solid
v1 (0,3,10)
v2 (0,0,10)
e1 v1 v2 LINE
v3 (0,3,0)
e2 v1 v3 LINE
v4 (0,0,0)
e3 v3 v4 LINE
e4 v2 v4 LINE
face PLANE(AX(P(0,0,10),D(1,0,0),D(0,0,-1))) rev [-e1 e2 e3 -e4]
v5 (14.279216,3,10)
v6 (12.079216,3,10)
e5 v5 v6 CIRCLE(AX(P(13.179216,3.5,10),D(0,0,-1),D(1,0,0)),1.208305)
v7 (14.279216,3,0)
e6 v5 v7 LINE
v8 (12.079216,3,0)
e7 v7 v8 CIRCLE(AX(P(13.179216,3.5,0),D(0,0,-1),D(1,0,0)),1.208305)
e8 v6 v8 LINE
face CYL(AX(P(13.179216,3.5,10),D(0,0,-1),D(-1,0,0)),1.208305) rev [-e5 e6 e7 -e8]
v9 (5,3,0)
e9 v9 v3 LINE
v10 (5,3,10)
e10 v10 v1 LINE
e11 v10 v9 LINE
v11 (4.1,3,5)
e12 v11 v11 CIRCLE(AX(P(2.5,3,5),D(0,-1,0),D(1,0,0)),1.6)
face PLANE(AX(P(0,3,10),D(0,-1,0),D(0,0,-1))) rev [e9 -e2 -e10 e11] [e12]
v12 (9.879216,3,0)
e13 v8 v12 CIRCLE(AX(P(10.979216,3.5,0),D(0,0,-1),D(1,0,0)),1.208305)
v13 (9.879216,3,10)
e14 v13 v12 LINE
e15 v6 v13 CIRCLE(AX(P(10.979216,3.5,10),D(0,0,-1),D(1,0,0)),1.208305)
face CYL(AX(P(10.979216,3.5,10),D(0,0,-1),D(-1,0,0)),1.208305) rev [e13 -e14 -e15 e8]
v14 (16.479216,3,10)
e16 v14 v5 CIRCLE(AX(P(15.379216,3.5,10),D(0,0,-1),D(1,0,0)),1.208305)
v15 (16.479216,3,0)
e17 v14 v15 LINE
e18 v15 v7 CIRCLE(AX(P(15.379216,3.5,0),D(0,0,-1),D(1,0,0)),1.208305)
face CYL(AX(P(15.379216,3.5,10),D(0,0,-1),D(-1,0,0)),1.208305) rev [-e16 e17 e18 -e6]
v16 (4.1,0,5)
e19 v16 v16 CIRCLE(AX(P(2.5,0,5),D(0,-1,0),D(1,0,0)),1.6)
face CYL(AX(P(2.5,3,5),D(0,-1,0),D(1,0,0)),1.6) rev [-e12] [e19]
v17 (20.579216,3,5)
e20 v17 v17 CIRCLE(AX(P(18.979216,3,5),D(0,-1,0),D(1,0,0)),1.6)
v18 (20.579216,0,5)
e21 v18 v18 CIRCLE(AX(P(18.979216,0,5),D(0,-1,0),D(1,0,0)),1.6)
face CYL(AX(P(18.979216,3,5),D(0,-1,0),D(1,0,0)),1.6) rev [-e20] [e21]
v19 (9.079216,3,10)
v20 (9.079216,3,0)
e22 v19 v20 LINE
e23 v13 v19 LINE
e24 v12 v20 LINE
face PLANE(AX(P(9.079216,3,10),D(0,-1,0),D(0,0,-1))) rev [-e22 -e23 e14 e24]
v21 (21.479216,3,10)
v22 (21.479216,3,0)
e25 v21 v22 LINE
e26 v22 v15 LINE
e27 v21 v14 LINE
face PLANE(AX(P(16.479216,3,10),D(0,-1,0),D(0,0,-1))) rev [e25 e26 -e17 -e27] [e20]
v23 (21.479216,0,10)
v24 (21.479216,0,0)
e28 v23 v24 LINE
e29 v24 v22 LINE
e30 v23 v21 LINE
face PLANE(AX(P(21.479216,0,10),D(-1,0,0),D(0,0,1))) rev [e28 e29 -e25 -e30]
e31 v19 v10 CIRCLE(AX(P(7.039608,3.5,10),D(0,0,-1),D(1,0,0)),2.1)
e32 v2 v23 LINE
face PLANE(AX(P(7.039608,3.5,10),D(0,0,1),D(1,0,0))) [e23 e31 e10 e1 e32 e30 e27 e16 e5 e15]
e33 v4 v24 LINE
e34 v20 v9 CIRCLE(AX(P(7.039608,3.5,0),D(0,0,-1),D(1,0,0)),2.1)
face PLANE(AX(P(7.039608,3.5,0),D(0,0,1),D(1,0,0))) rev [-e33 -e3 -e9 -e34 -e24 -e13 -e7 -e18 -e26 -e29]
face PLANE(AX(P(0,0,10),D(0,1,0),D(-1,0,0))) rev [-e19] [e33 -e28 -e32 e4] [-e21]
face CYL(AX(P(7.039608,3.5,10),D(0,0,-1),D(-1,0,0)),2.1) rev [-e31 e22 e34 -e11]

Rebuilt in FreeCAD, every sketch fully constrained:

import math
import FreeCAD as App
import Part
import Sketcher

doc = App.newDocument("Part")
body = doc.addObject("PartDesign::Body", "Body")

sketch1 = body.newObject("Sketcher::SketchObject", "Sketch")
sketch1.AttachmentSupport = (doc.getObject("XY_Plane"), [""])
sketch1.MapMode = "FlatFace"
sketch1.addGeometry(Part.LineSegment(App.Vector(0, 0, 0), App.Vector(21.479216, 0, 0)), False)
sketch1.addGeometry(Part.LineSegment(App.Vector(21.479216, 0, 0), App.Vector(21.479216, 3, 0)), False)
sketch1.addGeometry(Part.LineSegment(App.Vector(21.479216, 3, 0), App.Vector(16.479216, 3, 0)), False)
sketch1.addGeometry(Part.ArcOfCircle(Part.Circle(App.Vector(15.379216, 3.5, 0), App.Vector(0, 0, 1), 1.208305), math.radians(-155.556045), math.radians(-24.443955)), False)
sketch1.addGeometry(Part.ArcOfCircle(Part.Circle(App.Vector(13.179216, 3.5, 0), App.Vector(0, 0, 1), 1.208305), math.radians(-155.556045), math.radians(-24.443955)), False)
sketch1.addGeometry(Part.ArcOfCircle(Part.Circle(App.Vector(10.979216, 3.5, 0), App.Vector(0, 0, 1), 1.208305), math.radians(-155.556045), math.radians(-24.443955)), False)
sketch1.addGeometry(Part.LineSegment(App.Vector(9.879216, 3, 0), App.Vector(9.079216, 3, 0)), False)
sketch1.addGeometry(Part.ArcOfCircle(Part.Circle(App.Vector(7.039608, 3.5, 0), App.Vector(0, 0, 1), 2.1), math.radians(-166.225853), math.radians(-13.774147)), False)
sketch1.addGeometry(Part.LineSegment(App.Vector(5, 3, 0), App.Vector(0, 3, 0)), False)
sketch1.addGeometry(Part.LineSegment(App.Vector(0, 3, 0), App.Vector(0, 0, 0)), False)
sketch1.addConstraint(Sketcher.Constraint("Coincident", 0, 2, 1, 1))
sketch1.addConstraint(Sketcher.Constraint("Coincident", 1, 2, 2, 1))
sketch1.addConstraint(Sketcher.Constraint("Coincident", 2, 2, 3, 2))
sketch1.addConstraint(Sketcher.Constraint("Coincident", 3, 1, 4, 2))
sketch1.addConstraint(Sketcher.Constraint("Coincident", 4, 1, 5, 2))
sketch1.addConstraint(Sketcher.Constraint("Coincident", 5, 1, 6, 1))
sketch1.addConstraint(Sketcher.Constraint("Coincident", 6, 2, 7, 2))
sketch1.addConstraint(Sketcher.Constraint("Coincident", 7, 1, 8, 1))
sketch1.addConstraint(Sketcher.Constraint("Coincident", 8, 2, 9, 1))
sketch1.addConstraint(Sketcher.Constraint("Coincident", 9, 2, 0, 1))
sketch1.addConstraint(Sketcher.Constraint("Horizontal", 0))
sketch1.addConstraint(Sketcher.Constraint("Vertical", 1))
sketch1.addConstraint(Sketcher.Constraint("Horizontal", 2))
sketch1.addConstraint(Sketcher.Constraint("Horizontal", 6))
sketch1.addConstraint(Sketcher.Constraint("Horizontal", 8))
sketch1.addConstraint(Sketcher.Constraint("Vertical", 9))
sketch1.addConstraint(Sketcher.Constraint("Coincident", 9, 2, -1, 1))
sketch1.addConstraint(Sketcher.Constraint("Equal", 3, 4))
sketch1.addConstraint(Sketcher.Constraint("Equal", 4, 5))
sketch1.addConstraint(Sketcher.Constraint("Horizontal", 3, 3, 4, 3))
sketch1.addConstraint(Sketcher.Constraint("Horizontal", 4, 3, 5, 3))
sketch1.addConstraint(Sketcher.Constraint("Horizontal", 5, 3, 7, 3))
sketch1.addConstraint(Sketcher.Constraint("Horizontal", 2, 2, 3, 1))
sketch1.addConstraint(Sketcher.Constraint("Horizontal", 3, 1, 4, 1))
sketch1.addConstraint(Sketcher.Constraint("Horizontal", 4, 1, 5, 1))
sketch1.addConstraint(Sketcher.Constraint("Horizontal", 6, 2, 7, 1))
sketch1.addConstraint(Sketcher.Constraint("Equal", 2, 8))
sketch1.addConstraint(Sketcher.Constraint("Radius", 7, 2.1))
sketch1.addConstraint(Sketcher.Constraint("DistanceX", 2, 2, 2, 1, 5.0))
sketch1.addConstraint(Sketcher.Constraint("DistanceY", 1, 1, 1, 2, 3.0))
sketch1.addConstraint(Sketcher.Constraint("DistanceX", 6, 2, 6, 1, 0.8))
sketch1.addConstraint(Sketcher.Constraint("DistanceX", 6, 2, 4, 1, 3.0))
sketch1.addConstraint(Sketcher.Constraint("DistanceY", -1, 1, 3, 3, 3.5))
pad1 = body.newObject("PartDesign::Pad", "Pad")
pad1.Profile = sketch1
pad1.Length = 10

sketch2 = body.newObject("Sketcher::SketchObject", "Sketch001")
sketch2.AttachmentSupport = (doc.getObject("XZ_Plane"), [""])
sketch2.MapMode = "FlatFace"
sketch2.addGeometry(Part.Circle(App.Vector(2.5, 5, 0), App.Vector(0, 0, 1), 1.6), False)
sketch2.addGeometry(Part.Circle(App.Vector(18.979216, 5, 0), App.Vector(0, 0, 1), 1.6), False)
sketch2.addConstraint(Sketcher.Constraint("Equal", 0, 1))
sketch2.addConstraint(Sketcher.Constraint("Horizontal", 0, 3, 1, 3))
sketch2.addConstraint(Sketcher.Constraint("Diameter", 0, 3.2))
sketch2.addConstraint(Sketcher.Constraint("DistanceY", -1, 1, 0, 3, 5.0))
sketch2.addConstraint(Sketcher.Constraint("DistanceX", -1, 1, 0, 3, 2.5))
sketch2.addConstraint(Sketcher.Constraint("DistanceX", -1, 1, 1, 3, 18.979216))
pocket1 = body.newObject("PartDesign::Pocket", "Pocket")
pocket1.Profile = sketch2
pocket1.Type = "ThroughAll"

doc.recompute()
